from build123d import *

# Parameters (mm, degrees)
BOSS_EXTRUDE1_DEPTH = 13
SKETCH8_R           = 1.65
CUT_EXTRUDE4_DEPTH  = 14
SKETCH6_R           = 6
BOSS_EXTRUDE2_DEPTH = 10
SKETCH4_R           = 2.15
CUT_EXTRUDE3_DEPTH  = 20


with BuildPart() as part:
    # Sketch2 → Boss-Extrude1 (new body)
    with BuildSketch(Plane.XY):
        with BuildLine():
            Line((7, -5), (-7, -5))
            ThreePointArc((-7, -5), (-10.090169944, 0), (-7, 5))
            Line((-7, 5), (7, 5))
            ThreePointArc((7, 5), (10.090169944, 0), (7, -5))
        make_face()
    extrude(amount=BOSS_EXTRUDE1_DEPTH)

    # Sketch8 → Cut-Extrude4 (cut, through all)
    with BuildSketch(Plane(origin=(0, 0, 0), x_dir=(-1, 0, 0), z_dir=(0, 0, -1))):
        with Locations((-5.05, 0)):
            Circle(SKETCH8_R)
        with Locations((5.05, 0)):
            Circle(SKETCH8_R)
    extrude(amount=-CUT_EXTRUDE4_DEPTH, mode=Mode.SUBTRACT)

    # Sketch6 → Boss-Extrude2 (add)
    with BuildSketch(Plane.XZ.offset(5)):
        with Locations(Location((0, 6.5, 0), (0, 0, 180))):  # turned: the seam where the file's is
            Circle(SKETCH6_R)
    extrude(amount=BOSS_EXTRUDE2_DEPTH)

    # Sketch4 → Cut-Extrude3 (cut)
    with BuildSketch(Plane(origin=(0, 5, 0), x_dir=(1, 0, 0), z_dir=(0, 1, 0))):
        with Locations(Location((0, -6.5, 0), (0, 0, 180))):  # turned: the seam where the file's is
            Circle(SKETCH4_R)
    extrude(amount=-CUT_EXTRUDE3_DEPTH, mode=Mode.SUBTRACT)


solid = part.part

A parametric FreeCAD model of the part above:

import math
import FreeCAD as App
import Part
import Sketcher
from FreeCAD import Vector

doc = App.newDocument("Part")
body = doc.addObject("PartDesign::Body", "Body")

sketch1 = body.newObject("Sketcher::SketchObject", "Sketch")
sketch1.AttachmentSupport = (doc.getObject("XY_Plane"), [""])
sketch1.MapMode = "FlatFace"
sketch1.addGeometry(Part.LineSegment(Vector(-7, -5, 0), Vector(7, -5, 0)), False)
sketch1.addGeometry(Part.ArcOfCircle(Part.Circle(Vector(4, 0, 0), Vector(0, 0, 1), 6), math.radians(-63), math.radians(63)), False)
sketch1.addGeometry(Part.LineSegment(Vector(7, 5, 0), Vector(-7, 5, 0)), False)
sketch1.addGeometry(Part.ArcOfCircle(Part.Circle(Vector(-4, 0, 0), Vector(0, 0, 1), 6), math.radians(117), math.radians(243)), False)
sketch1.addConstraint(Sketcher.Constraint("Coincident", 0, 2, 1, 1))
sketch1.addConstraint(Sketcher.Constraint("Coincident", 1, 2, 2, 1))
sketch1.addConstraint(Sketcher.Constraint("Coincident", 2, 2, 3, 1))
sketch1.addConstraint(Sketcher.Constraint("Coincident", 3, 2, 0, 1))
sketch1.addConstraint(Sketcher.Constraint("Horizontal", 0))
sketch1.addConstraint(Sketcher.Constraint("Horizontal", 2))
sketch1.addConstraint(Sketcher.Constraint("Equal", 1, 3))
sketch1.addConstraint(Sketcher.Constraint("Symmetric", 1, 3, 3, 3, -1, 1))
sketch1.addConstraint(Sketcher.Constraint("Symmetric", 0, 2, 1, 2, -1))
sketch1.addConstraint(Sketcher.Constraint("DistanceX", 0, 1, 0, 2, 14.0))
sketch1.addConstraint(Sketcher.Constraint("DistanceY", 0, 2, -1, 1, 5.0))
sketch1.addConstraint(Sketcher.Constraint("DistanceX", 3, 3, 1, 3, 9.0))
pad1 = body.newObject("PartDesign::Pad", "Pad")
pad1.Profile = sketch1
pad1.Length = 13

sketch2 = body.newObject("Sketcher::SketchObject", "Sketch001")
sketch2.AttachmentSupport = (doc.getObject("XY_Plane"), [""])
sketch2.MapMode = "FlatFace"
sketch2.addGeometry(Part.Circle(Vector(5, 0, 0), Vector(0, 0, 1), 1.6), False)
sketch2.addGeometry(Part.Circle(Vector(-5, 0, 0), Vector(0, 0, 1), 1.6), False)
sketch2.addConstraint(Sketcher.Constraint("Equal", 0, 1))
sketch2.addConstraint(Sketcher.Constraint("Symmetric", 0, 3, 1, 3, -1, 1))
sketch2.addConstraint(Sketcher.Constraint("PointOnObject", 0, 3, -1))
sketch2.addConstraint(Sketcher.Constraint("Diameter", 0, 3.3))
sketch2.addConstraint(Sketcher.Constraint("DistanceX", 1, 3, 0, 3, 10.1))
pocket1 = body.newObject("PartDesign::Pocket", "Pocket")
pocket1.Profile = sketch2
pocket1.Type = "ThroughAll"
pocket1.Reversed = True

sketch3 = body.newObject("Sketcher::SketchObject", "Sketch002")
sketch3.AttachmentSupport = (doc.getObject("XZ_Plane"), [""])
sketch3.MapMode = "FlatFace"
sketch3.AttachmentOffset = App.Placement(Vector(0, 0, 5), App.Rotation())
sketch3.addGeometry(Part.Circle(Vector(0, 6, 0), Vector(0, 0, 1), 6), False)
sketch3.addConstraint(Sketcher.Constraint("PointOnObject", 0, 3, -2))
sketch3.addConstraint(Sketcher.Constraint("Diameter", 0, 12.0))
sketch3.addConstraint(Sketcher.Constraint("DistanceY", -1, 1, 0, 3, 6.5))
pad2 = body.newObject("PartDesign::Pad", "Pad001")
pad2.Profile = sketch3
pad2.Length = 10

sketch4 = body.newObject("Sketcher::SketchObject", "Sketch003")
sketch4.AttachmentSupport = (doc.getObject("XZ_Plane"), [""])
sketch4.MapMode = "FlatFace"
sketch4.AttachmentOffset = App.Placement(Vector(0, 0, -5), App.Rotation())
sketch4.addGeometry(Part.Circle(Vector(0, 6.5, 0), Vector(0, 0, 1), 2.1), False)
sketch4.addConstraint(Sketcher.Constraint("PointOnObject", 0, 3, -2))
sketch4.addConstraint(Sketcher.Constraint("Diameter", 0, 4.3))
sketch4.addConstraint(Sketcher.Constraint("DistanceY", -1, 1, 0, 3, 6.5))
pocket2 = body.newObject("PartDesign::Pocket", "Pocket001")
pocket2.Profile = sketch4
pocket2.Length = 20
pocket2.Reversed = True

doc.recompute()
